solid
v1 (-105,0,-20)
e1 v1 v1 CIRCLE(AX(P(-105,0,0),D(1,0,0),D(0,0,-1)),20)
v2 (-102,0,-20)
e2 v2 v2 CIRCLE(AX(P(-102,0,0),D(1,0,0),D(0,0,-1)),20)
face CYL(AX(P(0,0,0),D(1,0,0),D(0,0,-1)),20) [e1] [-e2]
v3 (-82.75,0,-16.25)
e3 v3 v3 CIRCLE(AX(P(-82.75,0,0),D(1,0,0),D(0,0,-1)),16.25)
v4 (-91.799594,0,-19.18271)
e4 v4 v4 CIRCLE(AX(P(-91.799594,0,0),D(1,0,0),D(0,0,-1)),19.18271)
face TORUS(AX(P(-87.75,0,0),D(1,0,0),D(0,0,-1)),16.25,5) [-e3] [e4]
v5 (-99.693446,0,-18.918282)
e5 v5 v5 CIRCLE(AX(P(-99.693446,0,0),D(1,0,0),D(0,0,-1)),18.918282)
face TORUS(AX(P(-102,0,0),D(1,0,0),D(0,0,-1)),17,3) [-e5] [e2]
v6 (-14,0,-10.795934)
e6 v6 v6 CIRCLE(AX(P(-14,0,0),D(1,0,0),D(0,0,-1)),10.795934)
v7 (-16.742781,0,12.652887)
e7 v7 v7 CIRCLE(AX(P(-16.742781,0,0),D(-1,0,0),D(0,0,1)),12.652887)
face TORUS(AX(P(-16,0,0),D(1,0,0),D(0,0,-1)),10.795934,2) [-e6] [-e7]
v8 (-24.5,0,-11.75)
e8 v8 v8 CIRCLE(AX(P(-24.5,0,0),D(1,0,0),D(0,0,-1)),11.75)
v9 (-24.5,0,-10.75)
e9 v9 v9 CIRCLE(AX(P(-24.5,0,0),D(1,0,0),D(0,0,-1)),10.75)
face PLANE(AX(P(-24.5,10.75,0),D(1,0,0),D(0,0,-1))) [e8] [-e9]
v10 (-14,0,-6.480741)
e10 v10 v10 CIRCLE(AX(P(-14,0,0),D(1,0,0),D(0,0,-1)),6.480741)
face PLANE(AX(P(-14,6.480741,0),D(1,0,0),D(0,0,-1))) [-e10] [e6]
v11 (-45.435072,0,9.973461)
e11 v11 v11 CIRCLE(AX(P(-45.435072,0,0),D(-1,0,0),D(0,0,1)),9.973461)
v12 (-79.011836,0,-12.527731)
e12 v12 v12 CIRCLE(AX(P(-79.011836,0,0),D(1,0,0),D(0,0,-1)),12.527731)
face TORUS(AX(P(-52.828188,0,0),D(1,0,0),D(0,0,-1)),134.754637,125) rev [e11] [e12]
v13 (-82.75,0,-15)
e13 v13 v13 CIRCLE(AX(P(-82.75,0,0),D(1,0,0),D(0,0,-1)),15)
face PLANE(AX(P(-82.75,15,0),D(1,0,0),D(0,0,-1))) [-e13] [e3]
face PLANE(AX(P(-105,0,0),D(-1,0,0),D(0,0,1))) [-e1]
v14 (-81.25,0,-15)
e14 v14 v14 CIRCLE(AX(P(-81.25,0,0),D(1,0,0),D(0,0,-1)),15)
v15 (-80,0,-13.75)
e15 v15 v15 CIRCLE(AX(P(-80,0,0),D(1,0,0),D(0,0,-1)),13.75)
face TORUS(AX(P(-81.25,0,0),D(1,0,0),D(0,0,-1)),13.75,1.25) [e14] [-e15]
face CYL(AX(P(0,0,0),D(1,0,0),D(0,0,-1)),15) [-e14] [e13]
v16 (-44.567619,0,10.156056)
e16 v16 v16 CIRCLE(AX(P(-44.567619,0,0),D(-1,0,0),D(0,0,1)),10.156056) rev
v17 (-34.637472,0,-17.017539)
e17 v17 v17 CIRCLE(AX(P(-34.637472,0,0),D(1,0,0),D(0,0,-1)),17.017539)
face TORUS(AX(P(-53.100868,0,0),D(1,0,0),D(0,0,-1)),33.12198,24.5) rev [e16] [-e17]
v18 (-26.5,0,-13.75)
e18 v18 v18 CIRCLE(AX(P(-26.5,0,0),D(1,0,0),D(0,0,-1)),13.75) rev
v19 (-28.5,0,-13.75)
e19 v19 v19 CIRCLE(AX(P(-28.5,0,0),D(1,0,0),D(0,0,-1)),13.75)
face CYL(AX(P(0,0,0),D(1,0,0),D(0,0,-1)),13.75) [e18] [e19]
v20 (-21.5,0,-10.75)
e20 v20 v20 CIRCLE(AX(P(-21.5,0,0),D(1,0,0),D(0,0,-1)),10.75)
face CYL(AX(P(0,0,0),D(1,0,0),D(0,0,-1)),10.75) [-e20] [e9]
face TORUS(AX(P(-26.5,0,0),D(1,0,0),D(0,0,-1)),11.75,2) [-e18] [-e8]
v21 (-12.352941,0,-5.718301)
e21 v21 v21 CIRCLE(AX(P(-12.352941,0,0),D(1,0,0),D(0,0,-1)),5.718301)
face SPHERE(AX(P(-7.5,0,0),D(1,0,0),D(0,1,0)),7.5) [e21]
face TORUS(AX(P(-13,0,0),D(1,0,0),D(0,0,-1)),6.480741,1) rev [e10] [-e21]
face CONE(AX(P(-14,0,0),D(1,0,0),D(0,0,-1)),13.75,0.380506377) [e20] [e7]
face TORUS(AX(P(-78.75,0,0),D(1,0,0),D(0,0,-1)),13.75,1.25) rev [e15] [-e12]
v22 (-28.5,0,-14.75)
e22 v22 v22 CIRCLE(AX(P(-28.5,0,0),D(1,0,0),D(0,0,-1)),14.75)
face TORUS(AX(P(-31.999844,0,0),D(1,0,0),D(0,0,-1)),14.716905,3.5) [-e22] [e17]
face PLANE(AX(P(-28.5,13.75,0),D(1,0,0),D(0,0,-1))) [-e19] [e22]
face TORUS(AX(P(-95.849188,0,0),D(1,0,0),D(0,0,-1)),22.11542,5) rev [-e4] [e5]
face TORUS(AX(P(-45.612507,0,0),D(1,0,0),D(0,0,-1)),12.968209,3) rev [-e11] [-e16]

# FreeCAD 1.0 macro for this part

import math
import FreeCAD as App
import Part
import Sketcher


def edges_at(feature, points):
    """Names of the edges that pass closest to the given points."""
    edges = feature.Shape.Edges
    near = lambda p: min(range(len(edges)), key=lambda i: edges[i].distToShape(Part.Vertex(*p))[0])
    return sorted({f"Edge{near(p) + 1}" for p in points})

doc = App.newDocument("Part")
body = doc.addObject("PartDesign::Body", "Body")

# Sketch on XY plane
sketch1 = body.newObject("Sketcher::SketchObject", "Sketch")
sketch1.AttachmentSupport = (doc.getObject("XY_Plane"), [""])
sketch1.MapMode = "FlatFace"
sketch1.addGeometry([
    Part.LineSegment(App.Vector(-14, 6.5, 0), App.Vector(-14, 13.8, 0)),  # 0
    Part.LineSegment(App.Vector(-14, 13.8, 0), App.Vector(-21.5, 10.8, 0)),  # 1
    Part.LineSegment(App.Vector(-21.5, 10.8, 0), App.Vector(-24.5, 10.8, 0)),  # 2
    Part.LineSegment(App.Vector(-24.5, 10.8, 0), App.Vector(-24.5, 13.8, 0)),  # 3
    Part.LineSegment(App.Vector(-24.5, 13.8, 0), App.Vector(-28.5, 13.8, 0)),  # 4
    Part.LineSegment(App.Vector(-28.5, 13.8, 0), App.Vector(-28.5, 14.8, 0)),  # 5
    Part.ArcOfCircle(Part.Circle(App.Vector(-32, 14.7, 0), App.Vector(0, 0, 1), 3.5), math.radians(1), math.radians(139)),  # 6
    Part.ArcOfCircle(Part.Circle(App.Vector(-53.1, 33.1, 0), App.Vector(0, 0, 1), 24.5), math.radians(-71), math.radians(-41)),  # 7
    Part.ArcOfCircle(Part.Circle(App.Vector(-52.8, 134.8, 0), App.Vector(0, 0, 1), 125), math.radians(-102.09), math.radians(-86.41)),  # 8
    Part.ArcOfCircle(Part.Circle(App.Vector(-78.8, 13.8, 0), App.Vector(0, 0, 1), 1.2), math.radians(180), math.radians(258)),  # 9
    Part.ArcOfCircle(Part.Circle(App.Vector(-81.3, 13.7, 0), App.Vector(0, 0, 1), 1.3), math.radians(0), math.radians(90)),  # 10
    Part.LineSegment(App.Vector(-81.2, 15, 0), App.Vector(-82.8, 15, 0)),  # 11
    Part.LineSegment(App.Vector(-82.8, 15, 0), App.Vector(-82.8, 16.2, 0)),  # 12
    Part.ArcOfCircle(Part.Circle(App.Vector(-87.8, 16.2, 0), App.Vector(0, 0, 1), 5), math.radians(0), math.radians(144)),  # 13
    Part.ArcOfCircle(Part.Circle(App.Vector(-95.8, 22.1, 0), App.Vector(0, 0, 1), 5), math.radians(-140), math.radians(-36)),  # 14
    Part.ArcOfCircle(Part.Circle(App.Vector(-102, 17, 0), App.Vector(0, 0, 1), 3), math.radians(40), math.radians(90)),  # 15
    Part.LineSegment(App.Vector(-102, 20, 0), App.Vector(-105, 20, 0)),  # 16
    Part.LineSegment(App.Vector(-105, 20, 0), App.Vector(-105, 0, 0)),  # 17
    Part.LineSegment(App.Vector(-105, 0, 0), App.Vector(0, 0, 0)),  # 18
    Part.ArcOfCircle(Part.Circle(App.Vector(-7.5, 0, 0), App.Vector(0, 0, 1), 7.5), math.radians(0), math.radians(130)),  # 19
    Part.ArcOfCircle(Part.Circle(App.Vector(-13, 6.5, 0), App.Vector(0, 0, 1), 1), math.radians(180), math.radians(310)),  # 20
], False)
sketch1.addConstraint([
    Sketcher.Constraint("Coincident", 0, 2, 1, 1),
    Sketcher.Constraint("Coincident", 1, 2, 2, 1),
    Sketcher.Constraint("Coincident", 2, 2, 3, 1),
    Sketcher.Constraint("Coincident", 3, 2, 4, 1),
    Sketcher.Constraint("Coincident", 4, 2, 5, 1),
    Sketcher.Constraint("Coincident", 5, 2, 6, 1),
    Sketcher.Constraint("Tangent", 6, 2, 7, 2),
    Sketcher.Constraint("Coincident", 7, 1, 8, 2),
    Sketcher.Constraint("Tangent", 8, 1, 9, 2),
    Sketcher.Constraint("Tangent", 9, 1, 10, 1),
    Sketcher.Constraint("Tangent", 10, 2, 11, 1),
    Sketcher.Constraint("Coincident", 11, 2, 12, 1),
    Sketcher.Constraint("Tangent", 12, 2, 13, 1),
    Sketcher.Constraint("Tangent", 13, 2, 14, 2),
    Sketcher.Constraint("Tangent", 14, 1, 15, 1),
    Sketcher.Constraint("Tangent", 15, 2, 16, 1),
    Sketcher.Constraint("Coincident", 16, 2, 17, 1),
    Sketcher.Constraint("Coincident", 17, 2, 18, 1),
    Sketcher.Constraint("Coincident", 18, 2, 19, 1),
    Sketcher.Constraint("Tangent", 19, 2, 20, 2),
    Sketcher.Constraint("Tangent", 20, 1, 0, 1),
    Sketcher.Constraint("Vertical", 0),
    Sketcher.Constraint("Horizontal", 2),
    Sketcher.Constraint("Vertical", 3),
    Sketcher.Constraint("Horizontal", 4),
    Sketcher.Constraint("Vertical", 5),
    Sketcher.Constraint("Horizontal", 11),
    Sketcher.Constraint("Vertical", 12),
    Sketcher.Constraint("Horizontal", 16),
    Sketcher.Constraint("Vertical", 17),
    Sketcher.Constraint("Horizontal", 18),
    Sketcher.Constraint("Coincident", 18, 2, -1, 1),
    Sketcher.Constraint("Equal", 9, 10),
    Sketcher.Constraint("Equal", 13, 14),
    Sketcher.Constraint("PointOnObject", 19, 3, -1),
    Sketcher.Constraint("Horizontal", 9, 3, 10, 3),
    Sketcher.Constraint("Horizontal", 10, 3, 0, 2),
    Sketcher.Constraint("Horizontal", 0, 2, 3, 2),
    Sketcher.Constraint("Equal", 2, 16),
    Sketcher.Constraint("Equal", 16, 3),
    Sketcher.Constraint("Radius", 8, 125.0),
    Sketcher.Constraint("Radius", 13, 5.0),
    Sketcher.Constraint("Radius", 15, 3.0),
    Sketcher.Constraint("Radius", 20, 1.0),
    Sketcher.Constraint("Radius", 6, 3.5),
    Sketcher.Constraint("Radius", 7, 24.5),
    Sketcher.Constraint("Radius", 19, 7.5),
    Sketcher.Constraint("DistanceX", 2, 2, 2, 1, 3.0),
    Sketcher.Constraint("DistanceX", 4, 2, 4, 1, 4.0),
    Sketcher.Constraint("DistanceX", 18, 1, 18, 2, 105.0),
    Sketcher.Constraint("DistanceY", 5, 1, 5, 2, 1.0),
    Sketcher.Constraint("DistanceY", 17, 2, 17, 1, 20.0),
    Sketcher.Constraint("Radius", 9, 1.25),
    Sketcher.Constraint("DistanceX", 11, 2, 11, 1, 1.5),
    Sketcher.Constraint("DistanceX", 20, 3, -1, 1, 13.0),
    Sketcher.Constraint("DistanceX", 7, 1, -1, 1, 45.0),
    Sketcher.Constraint("DistanceY", -1, 1, 7, 1, 10.0),
    Sketcher.Constraint("DistanceX", 9, 1, -1, 1, 80.0),
    Sketcher.Constraint("DistanceY", -1, 1, 10, 2, 15.0),
    Sketcher.Constraint("DistanceX", 1, 2, 19, 3, 14.0),
    Sketcher.Constraint("DistanceY", 12, 1, 12, 2, 1.25),
    Sketcher.Constraint("DistanceY", -1, 1, 7, 3, 33.12198),
])
revolution = body.newObject("PartDesign::Revolution", "Revolution")
revolution.Profile = sketch1
revolution.ReferenceAxis = (sketch1, ["H_Axis"])
revolution.Angle = 360

# Sketch on XY plane
sketch2 = body.newObject("Sketcher::SketchObject", "Sketch001")
sketch2.AttachmentSupport = (doc.getObject("XY_Plane"), [""])
sketch2.MapMode = "FlatFace"
sketch2.addGeometry([
    Part.LineSegment(App.Vector(-14, 6.5, 0), App.Vector(-14, 13.8, 0)),  # 0
    Part.LineSegment(App.Vector(-14, 13.8, 0), App.Vector(-21.5, 10.8, 0)),  # 1
    Part.LineSegment(App.Vector(-21.5, 10.8, 0), App.Vector(-24.5, 10.8, 0)),  # 2
    Part.LineSegment(App.Vector(-24.5, 10.8, 0), App.Vector(-24.5, 13.8, 0)),  # 3
    Part.LineSegment(App.Vector(-24.5, 13.8, 0), App.Vector(-28.5, 13.8, 0)),  # 4
    Part.LineSegment(App.Vector(-28.5, 13.8, 0), App.Vector(-28.5, 14.8, 0)),  # 5
    Part.ArcOfCircle(Part.Circle(App.Vector(-32, 14.7, 0), App.Vector(0, 0, 1), 3.5), math.radians(1), math.radians(139)),  # 6
    Part.ArcOfCircle(Part.Circle(App.Vector(-53.1, 33.1, 0), App.Vector(0, 0, 1), 24.5), math.radians(-71), math.radians(-41)),  # 7
    Part.ArcOfCircle(Part.Circle(App.Vector(-52.8, 134.8, 0), App.Vector(0, 0, 1), 125), math.radians(-102.09), math.radians(-86.41)),  # 8
    Part.ArcOfCircle(Part.Circle(App.Vector(-78.8, 13.8, 0), App.Vector(0, 0, 1), 1.2), math.radians(180), math.radians(258)),  # 9
    Part.ArcOfCircle(Part.Circle(App.Vector(-81.3, 13.7, 0), App.Vector(0, 0, 1), 1.3), math.radians(0), math.radians(90)),  # 10
    Part.LineSegment(App.Vector(-81.2, 15, 0), App.Vector(-82.8, 15, 0)),  # 11
    Part.LineSegment(App.Vector(-82.8, 15, 0), App.Vector(-82.8, 16.2, 0)),  # 12
    Part.ArcOfCircle(Part.Circle(App.Vector(-87.8, 16.2, 0), App.Vector(0, 0, 1), 5), math.radians(0), math.radians(144)),  # 13
    Part.ArcOfCircle(Part.Circle(App.Vector(-95.8, 22.1, 0), App.Vector(0, 0, 1), 5), math.radians(-140), math.radians(-36)),  # 14
    Part.ArcOfCircle(Part.Circle(App.Vector(-102, 17, 0), App.Vector(0, 0, 1), 3), math.radians(40), math.radians(90)),  # 15
    Part.LineSegment(App.Vector(-102, 20, 0), App.Vector(-105, 20, 0)),  # 16
    Part.LineSegment(App.Vector(-105, 20, 0), App.Vector(-105, 0, 0)),  # 17
    Part.LineSegment(App.Vector(-105, 0, 0), App.Vector(0, 0, 0)),  # 18
    Part.ArcOfCircle(Part.Circle(App.Vector(-7.5, 0, 0), App.Vector(0, 0, 1), 7.5), math.radians(0), math.radians(130)),  # 19
    Part.ArcOfCircle(Part.Circle(App.Vector(-13, 6.5, 0), App.Vector(0, 0, 1), 1), math.radians(180), math.radians(310)),  # 20
], False)
sketch2.addConstraint([
    Sketcher.Constraint("Coincident", 0, 2, 1, 1),
    Sketcher.Constraint("Coincident", 1, 2, 2, 1),
    Sketcher.Constraint("Coincident", 2, 2, 3, 1),
    Sketcher.Constraint("Coincident", 3, 2, 4, 1),
    Sketcher.Constraint("Coincident", 4, 2, 5, 1),
    Sketcher.Constraint("Coincident", 5, 2, 6, 1),
    Sketcher.Constraint("Tangent", 6, 2, 7, 2),
    Sketcher.Constraint("Coincident", 7, 1, 8, 2),
    Sketcher.Constraint("Tangent", 8, 1, 9, 2),
    Sketcher.Constraint("Tangent", 9, 1, 10, 1),
    Sketcher.Constraint("Tangent", 10, 2, 11, 1),
    Sketcher.Constraint("Coincident", 11, 2, 12, 1),
    Sketcher.Constraint("Tangent", 12, 2, 13, 1),
    Sketcher.Constraint("Tangent", 13, 2, 14, 2),
    Sketcher.Constraint("Tangent", 14, 1, 15, 1),
    Sketcher.Constraint("Tangent", 15, 2, 16, 1),
    Sketcher.Constraint("Coincident", 16, 2, 17, 1),
    Sketcher.Constraint("Coincident", 17, 2, 18, 1),
    Sketcher.Constraint("Coincident", 18, 2, 19, 1),
    Sketcher.Constraint("Tangent", 19, 2, 20, 2),
    Sketcher.Constraint("Tangent", 20, 1, 0, 1),
    Sketcher.Constraint("Vertical", 0),
    Sketcher.Constraint("Horizontal", 2),
    Sketcher.Constraint("Vertical", 3),
    Sketcher.Constraint("Horizontal", 4),
    Sketcher.Constraint("Vertical", 5),
    Sketcher.Constraint("Horizontal", 11),
    Sketcher.Constraint("Vertical", 12),
    Sketcher.Constraint("Horizontal", 16),
    Sketcher.Constraint("Vertical", 17),
    Sketcher.Constraint("Horizontal", 18),
    Sketcher.Constraint("Coincident", 18, 2, -1, 1),
    Sketcher.Constraint("Equal", 9, 10),
    Sketcher.Constraint("Equal", 13, 14),
    Sketcher.Constraint("PointOnObject", 19, 3, -1),
    Sketcher.Constraint("Horizontal", 9, 3, 10, 3),
    Sketcher.Constraint("Horizontal", 10, 3, 0, 2),
    Sketcher.Constraint("Horizontal", 0, 2, 3, 2),
    Sketcher.Constraint("Equal", 2, 16),
    Sketcher.Constraint("Equal", 16, 3),
    Sketcher.Constraint("Radius", 8, 125.0),
    Sketcher.Constraint("Radius", 13, 5.0),
    Sketcher.Constraint("Radius", 15, 3.0),
    Sketcher.Constraint("Radius", 20, 1.0),
    Sketcher.Constraint("Radius", 6, 3.5),
    Sketcher.Constraint("Radius", 7, 24.5),
    Sketcher.Constraint("Radius", 19, 7.5),
    Sketcher.Constraint("DistanceX", 2, 2, 2, 1, 3.0),
    Sketcher.Constraint("DistanceX", 4, 2, 4, 1, 4.0),
    Sketcher.Constraint("DistanceX", 18, 1, 18, 2, 105.0),
    Sketcher.Constraint("DistanceY", 5, 1, 5, 2, 1.0),
    Sketcher.Constraint("DistanceY", 17, 2, 17, 1, 20.0),
    Sketcher.Constraint("Radius", 9, 1.25),
    Sketcher.Constraint("DistanceX", 11, 2, 11, 1, 1.5),
    Sketcher.Constraint("DistanceX", 20, 3, -1, 1, 13.0),
    Sketcher.Constraint("DistanceX", 7, 1, -1, 1, 45.0),
    Sketcher.Constraint("DistanceY", -1, 1, 7, 1, 10.0),
    Sketcher.Constraint("DistanceX", 9, 1, -1, 1, 80.0),
    Sketcher.Constraint("DistanceY", -1, 1, 10, 2, 15.0),
    Sketcher.Constraint("DistanceX", 1, 2, 19, 3, 14.0),
    Sketcher.Constraint("DistanceY", 12, 1, 12, 2, 1.25),
    Sketcher.Constraint("DistanceY", -1, 1, 7, 3, 33.12198),
])
revolution2 = body.newObject("PartDesign::Revolution", "Revolution001")
revolution2.Profile = sketch2
revolution2.ReferenceAxis = (sketch2, ["H_Axis"])
revolution2.Angle = 360
doc.recompute()

fillet = body.newObject("PartDesign::Fillet", "Fillet")
fillet.Base = (revolution2, edges_at(revolution2, [(-24.5, 0, 13.75), (-14, 0, 13.75)]))
fillet.Radius = 2
doc.recompute()

fillet2 = body.newObject("PartDesign::Fillet", "Fillet001")
fillet2.Base = (fillet, edges_at(fillet, [(-45, 0, 10)]))
fillet2.Radius = 3

doc.recompute()
